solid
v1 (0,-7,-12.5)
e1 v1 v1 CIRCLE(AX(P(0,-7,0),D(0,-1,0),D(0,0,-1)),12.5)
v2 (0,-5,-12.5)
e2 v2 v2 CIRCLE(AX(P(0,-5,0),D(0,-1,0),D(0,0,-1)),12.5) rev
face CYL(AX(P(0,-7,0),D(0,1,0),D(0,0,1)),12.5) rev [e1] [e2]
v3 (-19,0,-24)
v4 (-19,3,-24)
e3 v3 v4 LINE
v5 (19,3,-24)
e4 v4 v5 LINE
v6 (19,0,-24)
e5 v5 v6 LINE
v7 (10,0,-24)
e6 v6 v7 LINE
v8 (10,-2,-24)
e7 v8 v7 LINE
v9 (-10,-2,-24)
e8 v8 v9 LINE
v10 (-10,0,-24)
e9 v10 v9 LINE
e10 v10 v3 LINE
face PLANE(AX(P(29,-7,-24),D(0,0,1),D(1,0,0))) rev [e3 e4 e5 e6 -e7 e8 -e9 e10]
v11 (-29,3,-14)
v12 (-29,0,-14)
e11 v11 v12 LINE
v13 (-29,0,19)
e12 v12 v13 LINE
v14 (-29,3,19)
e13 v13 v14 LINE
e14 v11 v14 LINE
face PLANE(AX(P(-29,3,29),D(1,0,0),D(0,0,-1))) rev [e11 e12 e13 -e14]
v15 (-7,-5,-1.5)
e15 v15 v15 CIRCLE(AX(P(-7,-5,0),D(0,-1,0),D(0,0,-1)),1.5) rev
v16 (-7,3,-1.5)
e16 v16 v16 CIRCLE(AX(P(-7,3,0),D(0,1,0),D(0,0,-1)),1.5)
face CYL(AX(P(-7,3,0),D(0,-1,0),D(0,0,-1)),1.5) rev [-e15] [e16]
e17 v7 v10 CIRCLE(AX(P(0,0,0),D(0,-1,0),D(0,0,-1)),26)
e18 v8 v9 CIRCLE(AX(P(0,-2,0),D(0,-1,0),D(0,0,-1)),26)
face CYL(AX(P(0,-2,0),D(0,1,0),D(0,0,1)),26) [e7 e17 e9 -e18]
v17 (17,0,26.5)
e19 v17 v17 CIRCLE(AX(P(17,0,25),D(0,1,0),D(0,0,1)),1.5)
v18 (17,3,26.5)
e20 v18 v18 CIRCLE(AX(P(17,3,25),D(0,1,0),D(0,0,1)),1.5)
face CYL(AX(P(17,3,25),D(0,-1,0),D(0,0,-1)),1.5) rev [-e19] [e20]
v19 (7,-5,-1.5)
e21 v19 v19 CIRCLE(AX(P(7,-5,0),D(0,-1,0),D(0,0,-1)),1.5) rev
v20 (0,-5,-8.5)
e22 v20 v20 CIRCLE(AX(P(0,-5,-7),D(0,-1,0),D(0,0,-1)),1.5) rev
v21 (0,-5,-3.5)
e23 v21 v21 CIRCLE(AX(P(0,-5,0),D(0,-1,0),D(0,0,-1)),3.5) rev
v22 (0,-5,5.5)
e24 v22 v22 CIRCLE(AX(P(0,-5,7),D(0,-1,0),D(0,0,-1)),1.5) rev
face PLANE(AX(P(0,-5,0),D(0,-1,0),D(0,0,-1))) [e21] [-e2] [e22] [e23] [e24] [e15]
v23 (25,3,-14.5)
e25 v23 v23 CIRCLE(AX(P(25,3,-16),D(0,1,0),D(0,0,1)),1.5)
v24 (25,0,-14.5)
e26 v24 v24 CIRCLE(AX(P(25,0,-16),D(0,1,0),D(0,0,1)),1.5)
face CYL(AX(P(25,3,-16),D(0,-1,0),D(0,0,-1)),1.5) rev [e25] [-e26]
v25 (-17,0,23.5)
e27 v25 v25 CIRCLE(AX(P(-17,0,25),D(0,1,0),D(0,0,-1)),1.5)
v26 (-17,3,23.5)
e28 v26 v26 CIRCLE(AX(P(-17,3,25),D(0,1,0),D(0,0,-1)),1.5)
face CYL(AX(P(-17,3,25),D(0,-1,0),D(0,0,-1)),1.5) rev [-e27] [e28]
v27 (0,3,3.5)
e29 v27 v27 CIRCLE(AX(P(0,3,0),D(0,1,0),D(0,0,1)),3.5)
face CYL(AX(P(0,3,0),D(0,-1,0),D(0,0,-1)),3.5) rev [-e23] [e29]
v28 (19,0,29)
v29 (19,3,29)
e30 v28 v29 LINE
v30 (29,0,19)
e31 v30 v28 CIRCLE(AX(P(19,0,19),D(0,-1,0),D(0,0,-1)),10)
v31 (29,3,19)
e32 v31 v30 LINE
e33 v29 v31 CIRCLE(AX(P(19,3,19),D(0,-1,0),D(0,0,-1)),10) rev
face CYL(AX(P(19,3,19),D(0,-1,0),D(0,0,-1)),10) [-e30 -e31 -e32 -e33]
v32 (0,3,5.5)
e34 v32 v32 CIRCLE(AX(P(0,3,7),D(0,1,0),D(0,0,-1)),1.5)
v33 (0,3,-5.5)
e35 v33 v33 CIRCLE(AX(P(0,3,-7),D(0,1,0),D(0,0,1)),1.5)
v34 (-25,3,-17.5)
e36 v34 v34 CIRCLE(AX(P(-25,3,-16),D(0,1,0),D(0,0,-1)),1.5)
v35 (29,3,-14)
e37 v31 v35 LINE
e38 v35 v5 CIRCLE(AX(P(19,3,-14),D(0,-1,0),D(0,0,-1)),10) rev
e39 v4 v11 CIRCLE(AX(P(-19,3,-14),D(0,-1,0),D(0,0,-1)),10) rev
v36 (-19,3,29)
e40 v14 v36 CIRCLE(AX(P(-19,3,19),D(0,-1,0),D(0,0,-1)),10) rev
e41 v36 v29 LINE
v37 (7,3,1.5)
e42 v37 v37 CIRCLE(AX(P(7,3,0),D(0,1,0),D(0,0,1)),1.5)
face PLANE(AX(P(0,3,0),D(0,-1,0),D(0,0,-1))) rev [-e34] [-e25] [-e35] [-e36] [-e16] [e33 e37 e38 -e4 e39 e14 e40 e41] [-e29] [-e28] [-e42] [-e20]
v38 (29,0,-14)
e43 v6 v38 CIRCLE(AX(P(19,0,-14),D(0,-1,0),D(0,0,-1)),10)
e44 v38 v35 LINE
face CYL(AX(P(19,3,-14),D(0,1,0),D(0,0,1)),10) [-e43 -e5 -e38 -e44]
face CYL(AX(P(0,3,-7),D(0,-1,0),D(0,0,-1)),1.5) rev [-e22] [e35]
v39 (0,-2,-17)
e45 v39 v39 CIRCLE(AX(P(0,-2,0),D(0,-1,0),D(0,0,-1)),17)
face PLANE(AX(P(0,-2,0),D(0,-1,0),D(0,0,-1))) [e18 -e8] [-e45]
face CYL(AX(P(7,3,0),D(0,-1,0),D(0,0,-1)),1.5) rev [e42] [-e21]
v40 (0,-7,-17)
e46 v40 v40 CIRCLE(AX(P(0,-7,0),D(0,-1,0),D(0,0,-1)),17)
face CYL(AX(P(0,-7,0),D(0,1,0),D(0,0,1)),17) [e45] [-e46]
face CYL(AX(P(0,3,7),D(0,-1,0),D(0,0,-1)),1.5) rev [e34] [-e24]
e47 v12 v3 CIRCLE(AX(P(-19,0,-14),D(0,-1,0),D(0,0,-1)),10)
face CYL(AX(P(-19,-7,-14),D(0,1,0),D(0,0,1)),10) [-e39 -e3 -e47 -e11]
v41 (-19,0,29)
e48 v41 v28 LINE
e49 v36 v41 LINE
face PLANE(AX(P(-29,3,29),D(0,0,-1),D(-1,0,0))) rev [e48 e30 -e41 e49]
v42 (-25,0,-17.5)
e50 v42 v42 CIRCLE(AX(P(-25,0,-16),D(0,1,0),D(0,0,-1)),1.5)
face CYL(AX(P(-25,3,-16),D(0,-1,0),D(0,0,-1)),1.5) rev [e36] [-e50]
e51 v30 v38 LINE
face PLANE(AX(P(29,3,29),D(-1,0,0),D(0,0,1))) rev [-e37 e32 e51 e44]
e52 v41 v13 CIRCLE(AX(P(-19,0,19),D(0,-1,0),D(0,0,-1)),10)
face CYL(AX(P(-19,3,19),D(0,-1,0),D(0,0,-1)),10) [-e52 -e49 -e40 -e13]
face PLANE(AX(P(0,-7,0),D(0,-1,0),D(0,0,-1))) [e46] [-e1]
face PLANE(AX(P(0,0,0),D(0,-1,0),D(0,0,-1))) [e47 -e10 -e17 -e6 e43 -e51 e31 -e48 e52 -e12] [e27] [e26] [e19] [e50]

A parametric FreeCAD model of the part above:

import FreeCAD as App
import Part
import Sketcher

V = App.Vector
Q = App.Units.Quantity


def edges_at(feature, points):
    """Names of the edges that pass closest to the given points."""
    edges = feature.Shape.Edges
    near = lambda p: min(range(len(edges)), key=lambda i: edges[i].distToShape(Part.Vertex(*p))[0])
    return sorted({f"Edge{near(p) + 1}" for p in points})

doc = App.newDocument("Part")
body = doc.addObject("PartDesign::Body", "Body")

sketch1 = body.newObject("Sketcher::SketchObject", "Sketch")
sketch1.AttachmentSupport = (doc.getObject("XZ_Plane"), [""])
sketch1.MapMode = "FlatFace"
sketch1.addGeometry([
    Part.LineSegment(V(-29, -29, 0), V(-29, 29, 0)),
    Part.LineSegment(V(-29, 29, 0), V(29, 29, 0)),
    Part.LineSegment(V(29, 29, 0), V(29, -29, 0)),
    Part.LineSegment(V(29, -29, 0), V(-29, -29, 0)),
    Part.Circle(V(-17, 25, 0), V(0, 0, 1), 1.5),
    Part.Circle(V(17, 25, 0), V(0, 0, 1), 1.5),
    Part.Circle(V(0, 7, 0), V(0, 0, 1), 1.5),
    Part.Circle(V(-7, 0, 0), V(0, 0, 1), 1.5),
    Part.Circle(V(-25, -16, 0), V(0, 0, 1), 1.5),
    Part.Circle(V(0, 0, 0), V(0, 0, 1), 3.5),
    Part.Circle(V(7, 0, 0), V(0, 0, 1), 1.5),
    Part.Circle(V(0, -7, 0), V(0, 0, 1), 1.5),
    Part.Circle(V(25, -16, 0), V(0, 0, 1), 1.5),
], False)
sketch1.addConstraint([
    Sketcher.Constraint("Coincident", 0, 2, 1, 1),
    Sketcher.Constraint("Coincident", 1, 2, 2, 1),
    Sketcher.Constraint("Coincident", 2, 2, 3, 1),
    Sketcher.Constraint("Coincident", 3, 2, 0, 1),
    Sketcher.Constraint("Vertical", 0),
    Sketcher.Constraint("Horizontal", 1),
    Sketcher.Constraint("Vertical", 2),
    Sketcher.Constraint("Horizontal", 3),
    Sketcher.Constraint("Coincident", 9, 3, -1, 1),
    Sketcher.Constraint("Equal", 4, 5),
    Sketcher.Constraint("Equal", 5, 6),
    Sketcher.Constraint("Equal", 6, 7),
    Sketcher.Constraint("Equal", 7, 8),
    Sketcher.Constraint("Equal", 8, 10),
    Sketcher.Constraint("Equal", 10, 11),
    Sketcher.Constraint("Equal", 11, 12),
    Sketcher.Constraint("Symmetric", 7, 3, 10, 3, -1, 1),
    Sketcher.Constraint("Symmetric", 6, 3, 11, 3, -1, 1),
    Sketcher.Constraint("Symmetric", 0, 2, 2, 2, -1, 1),
    Sketcher.Constraint("Symmetric", 4, 3, 5, 3, -2),
    Sketcher.Constraint("Symmetric", 8, 3, 12, 3, -2),
    Sketcher.Constraint("PointOnObject", 6, 3, -2),
    Sketcher.Constraint("PointOnObject", 7, 3, -1),
    Sketcher.Constraint("Equal", 3, 0),
    Sketcher.Constraint("Diameter", 4, Q("3 mm")),
    Sketcher.Constraint("Diameter", 9, Q("7 mm")),
    Sketcher.Constraint("DistanceX", 1, 1, 1, 2, Q("58 mm")),
    Sketcher.Constraint("DistanceX", 4, 3, -1, 1, Q("17 mm")),
    Sketcher.Constraint("DistanceY", -1, 1, 4, 3, Q("25 mm")),
    Sketcher.Constraint("DistanceY", -1, 1, 6, 3, Q("7 mm")),
    Sketcher.Constraint("DistanceX", 7, 3, -1, 1, Q("7 mm")),
    Sketcher.Constraint("DistanceX", 8, 3, -1, 1, Q("25 mm")),
    Sketcher.Constraint("DistanceY", 8, 3, -1, 1, Q("16 mm")),
])
pad1 = body.newObject("PartDesign::Pad", "Pad")
pad1.Profile = sketch1
pad1.Length = 3
pad1.Reversed = True

sketch2 = body.newObject("Sketcher::SketchObject", "Sketch001")
sketch2.AttachmentSupport = (doc.getObject("XZ_Plane"), [""])
sketch2.MapMode = "FlatFace"
sketch2.AttachmentOffset = App.Placement(V(0, 0, 5), App.Rotation())
sketch2.addGeometry([
    Part.Circle(V(0, 0, 0), V(0, 0, 1), 12.5),
    Part.Circle(V(0, 7, 0), V(0, 0, 1), 1.5),
    Part.Circle(V(-7, 0, 0), V(0, 0, 1), 1.5),
    Part.Circle(V(7, 0, 0), V(0, 0, 1), 1.5),
    Part.Circle(V(0, 0, 0), V(0, 0, 1), 3.5),
    Part.Circle(V(0, -7, 0), V(0, 0, 1), 1.5),
], False)
sketch2.addConstraint([
    Sketcher.Constraint("Coincident", 0, 3, -1, 1),
    Sketcher.Constraint("Coincident", 4, 3, -1, 1),
    Sketcher.Constraint("Equal", 1, 2),
    Sketcher.Constraint("Equal", 2, 3),
    Sketcher.Constraint("Equal", 3, 5),
    Sketcher.Constraint("Symmetric", 2, 3, 3, 3, -1, 1),
    Sketcher.Constraint("Symmetric", 1, 3, 5, 3, -1, 1),
    Sketcher.Constraint("PointOnObject", 1, 3, -2),
    Sketcher.Constraint("PointOnObject", 2, 3, -1),
    Sketcher.Constraint("Diameter", 0, Q("25 mm")),
    Sketcher.Constraint("Diameter", 1, Q("3 mm")),
    Sketcher.Constraint("Diameter", 4, Q("7 mm")),
    Sketcher.Constraint("DistanceY", -1, 1, 1, 3, Q("7 mm")),
    Sketcher.Constraint("DistanceX", 2, 3, -1, 1, Q("7 mm")),
])
pad2 = body.newObject("PartDesign::Pad", "Pad001")
pad2.Profile = sketch2
pad2.Length = 5
pad2.Reversed = True

sketch3 = body.newObject("Sketcher::SketchObject", "Sketch002")
sketch3.AttachmentSupport = (doc.getObject("XZ_Plane"), [""])
sketch3.MapMode = "FlatFace"
sketch3.AttachmentOffset = App.Placement(V(0, 0, 7), App.Rotation())
sketch3.addGeometry([
    Part.Circle(V(0, 0, 0), V(0, 0, 1), 17),
    Part.Circle(V(0, 0, 0), V(0, 0, 1), 12),
], False)
sketch3.addConstraint([
    Sketcher.Constraint("Coincident", 0, 3, -1, 1),
    Sketcher.Constraint("Coincident", 1, 3, -1, 1),
    Sketcher.Constraint("Diameter", 0, Q("34 mm")),
    Sketcher.Constraint("Diameter", 1, Q("25 mm")),
])
pad3 = body.newObject("PartDesign::Pad", "Pad002")
pad3.Profile = sketch3
pad3.Length = 7
pad3.Reversed = True

sketch4 = body.newObject("Sketcher::SketchObject", "Sketch003")
sketch4.AttachmentSupport = (doc.getObject("XZ_Plane"), [""])
sketch4.MapMode = "FlatFace"
sketch4.addGeometry([
    Part.Circle(V(0, 0, 0), V(0, 0, 1), 26),
    Part.Circle(V(0, 0, 0), V(0, 0, 1), 12),
], False)
sketch4.addConstraint([
    Sketcher.Constraint("Coincident", 0, 3, -1, 1),
    Sketcher.Constraint("Coincident", 1, 3, -1, 1),
    Sketcher.Constraint("Diameter", 0, Q("52 mm")),
    Sketcher.Constraint("Diameter", 1, Q("24 mm")),
])
pad4 = body.newObject("PartDesign::Pad", "Pad003")
pad4.Profile = sketch4
pad4.Length = 2

sketch5 = body.newObject("Sketcher::SketchObject", "Sketch004")
sketch5.AttachmentSupport = (doc.getObject("XZ_Plane"), [""])
sketch5.MapMode = "FlatFace"
sketch5.AttachmentOffset = App.Placement(V(0, 0, -3), App.Rotation())
sketch5.addGeometry([
    Part.LineSegment(V(-29, -29, 0), V(-29, -24, 0)),
    Part.LineSegment(V(-29, -24, 0), V(29, -24, 0)),
    Part.LineSegment(V(29, -24, 0), V(29, -29, 0)),
    Part.LineSegment(V(29, -29, 0), V(-29, -29, 0)),
], False)
sketch5.addConstraint([
    Sketcher.Constraint("Coincident", 0, 2, 1, 1),
    Sketcher.Constraint("Coincident", 1, 2, 2, 1),
    Sketcher.Constraint("Coincident", 2, 2, 3, 1),
    Sketcher.Constraint("Coincident", 3, 2, 0, 1),
    Sketcher.Constraint("Vertical", 0),
    Sketcher.Constraint("Horizontal", 1),
    Sketcher.Constraint("Vertical", 2),
    Sketcher.Constraint("Horizontal", 3),
    Sketcher.Constraint("DistanceX", 1, 1, 1, 2, Q("58 mm")),
    Sketcher.Constraint("DistanceY", 0, 1, 0, 2, Q("5 mm")),
    Sketcher.Constraint("DistanceX", 0, 2, -1, 1, Q("29 mm")),
    Sketcher.Constraint("DistanceY", 0, 2, -1, 1, Q("24 mm")),
])
pocket1 = body.newObject("PartDesign::Pocket", "Pocket")
pocket1.Profile = sketch5
pocket1.Length = 10
pocket1.Reversed = True
doc.recompute()

fillet = body.newObject("PartDesign::Fillet", "Fillet")
fillet.Base = (pocket1, edges_at(pocket1, [
    (29, 1.5, 29),
    (-29, 1.5, 29),
    (29, 1.5, -24),
    (-29, 1.5, -24),
]))
fillet.Radius = 10

doc.recompute()
